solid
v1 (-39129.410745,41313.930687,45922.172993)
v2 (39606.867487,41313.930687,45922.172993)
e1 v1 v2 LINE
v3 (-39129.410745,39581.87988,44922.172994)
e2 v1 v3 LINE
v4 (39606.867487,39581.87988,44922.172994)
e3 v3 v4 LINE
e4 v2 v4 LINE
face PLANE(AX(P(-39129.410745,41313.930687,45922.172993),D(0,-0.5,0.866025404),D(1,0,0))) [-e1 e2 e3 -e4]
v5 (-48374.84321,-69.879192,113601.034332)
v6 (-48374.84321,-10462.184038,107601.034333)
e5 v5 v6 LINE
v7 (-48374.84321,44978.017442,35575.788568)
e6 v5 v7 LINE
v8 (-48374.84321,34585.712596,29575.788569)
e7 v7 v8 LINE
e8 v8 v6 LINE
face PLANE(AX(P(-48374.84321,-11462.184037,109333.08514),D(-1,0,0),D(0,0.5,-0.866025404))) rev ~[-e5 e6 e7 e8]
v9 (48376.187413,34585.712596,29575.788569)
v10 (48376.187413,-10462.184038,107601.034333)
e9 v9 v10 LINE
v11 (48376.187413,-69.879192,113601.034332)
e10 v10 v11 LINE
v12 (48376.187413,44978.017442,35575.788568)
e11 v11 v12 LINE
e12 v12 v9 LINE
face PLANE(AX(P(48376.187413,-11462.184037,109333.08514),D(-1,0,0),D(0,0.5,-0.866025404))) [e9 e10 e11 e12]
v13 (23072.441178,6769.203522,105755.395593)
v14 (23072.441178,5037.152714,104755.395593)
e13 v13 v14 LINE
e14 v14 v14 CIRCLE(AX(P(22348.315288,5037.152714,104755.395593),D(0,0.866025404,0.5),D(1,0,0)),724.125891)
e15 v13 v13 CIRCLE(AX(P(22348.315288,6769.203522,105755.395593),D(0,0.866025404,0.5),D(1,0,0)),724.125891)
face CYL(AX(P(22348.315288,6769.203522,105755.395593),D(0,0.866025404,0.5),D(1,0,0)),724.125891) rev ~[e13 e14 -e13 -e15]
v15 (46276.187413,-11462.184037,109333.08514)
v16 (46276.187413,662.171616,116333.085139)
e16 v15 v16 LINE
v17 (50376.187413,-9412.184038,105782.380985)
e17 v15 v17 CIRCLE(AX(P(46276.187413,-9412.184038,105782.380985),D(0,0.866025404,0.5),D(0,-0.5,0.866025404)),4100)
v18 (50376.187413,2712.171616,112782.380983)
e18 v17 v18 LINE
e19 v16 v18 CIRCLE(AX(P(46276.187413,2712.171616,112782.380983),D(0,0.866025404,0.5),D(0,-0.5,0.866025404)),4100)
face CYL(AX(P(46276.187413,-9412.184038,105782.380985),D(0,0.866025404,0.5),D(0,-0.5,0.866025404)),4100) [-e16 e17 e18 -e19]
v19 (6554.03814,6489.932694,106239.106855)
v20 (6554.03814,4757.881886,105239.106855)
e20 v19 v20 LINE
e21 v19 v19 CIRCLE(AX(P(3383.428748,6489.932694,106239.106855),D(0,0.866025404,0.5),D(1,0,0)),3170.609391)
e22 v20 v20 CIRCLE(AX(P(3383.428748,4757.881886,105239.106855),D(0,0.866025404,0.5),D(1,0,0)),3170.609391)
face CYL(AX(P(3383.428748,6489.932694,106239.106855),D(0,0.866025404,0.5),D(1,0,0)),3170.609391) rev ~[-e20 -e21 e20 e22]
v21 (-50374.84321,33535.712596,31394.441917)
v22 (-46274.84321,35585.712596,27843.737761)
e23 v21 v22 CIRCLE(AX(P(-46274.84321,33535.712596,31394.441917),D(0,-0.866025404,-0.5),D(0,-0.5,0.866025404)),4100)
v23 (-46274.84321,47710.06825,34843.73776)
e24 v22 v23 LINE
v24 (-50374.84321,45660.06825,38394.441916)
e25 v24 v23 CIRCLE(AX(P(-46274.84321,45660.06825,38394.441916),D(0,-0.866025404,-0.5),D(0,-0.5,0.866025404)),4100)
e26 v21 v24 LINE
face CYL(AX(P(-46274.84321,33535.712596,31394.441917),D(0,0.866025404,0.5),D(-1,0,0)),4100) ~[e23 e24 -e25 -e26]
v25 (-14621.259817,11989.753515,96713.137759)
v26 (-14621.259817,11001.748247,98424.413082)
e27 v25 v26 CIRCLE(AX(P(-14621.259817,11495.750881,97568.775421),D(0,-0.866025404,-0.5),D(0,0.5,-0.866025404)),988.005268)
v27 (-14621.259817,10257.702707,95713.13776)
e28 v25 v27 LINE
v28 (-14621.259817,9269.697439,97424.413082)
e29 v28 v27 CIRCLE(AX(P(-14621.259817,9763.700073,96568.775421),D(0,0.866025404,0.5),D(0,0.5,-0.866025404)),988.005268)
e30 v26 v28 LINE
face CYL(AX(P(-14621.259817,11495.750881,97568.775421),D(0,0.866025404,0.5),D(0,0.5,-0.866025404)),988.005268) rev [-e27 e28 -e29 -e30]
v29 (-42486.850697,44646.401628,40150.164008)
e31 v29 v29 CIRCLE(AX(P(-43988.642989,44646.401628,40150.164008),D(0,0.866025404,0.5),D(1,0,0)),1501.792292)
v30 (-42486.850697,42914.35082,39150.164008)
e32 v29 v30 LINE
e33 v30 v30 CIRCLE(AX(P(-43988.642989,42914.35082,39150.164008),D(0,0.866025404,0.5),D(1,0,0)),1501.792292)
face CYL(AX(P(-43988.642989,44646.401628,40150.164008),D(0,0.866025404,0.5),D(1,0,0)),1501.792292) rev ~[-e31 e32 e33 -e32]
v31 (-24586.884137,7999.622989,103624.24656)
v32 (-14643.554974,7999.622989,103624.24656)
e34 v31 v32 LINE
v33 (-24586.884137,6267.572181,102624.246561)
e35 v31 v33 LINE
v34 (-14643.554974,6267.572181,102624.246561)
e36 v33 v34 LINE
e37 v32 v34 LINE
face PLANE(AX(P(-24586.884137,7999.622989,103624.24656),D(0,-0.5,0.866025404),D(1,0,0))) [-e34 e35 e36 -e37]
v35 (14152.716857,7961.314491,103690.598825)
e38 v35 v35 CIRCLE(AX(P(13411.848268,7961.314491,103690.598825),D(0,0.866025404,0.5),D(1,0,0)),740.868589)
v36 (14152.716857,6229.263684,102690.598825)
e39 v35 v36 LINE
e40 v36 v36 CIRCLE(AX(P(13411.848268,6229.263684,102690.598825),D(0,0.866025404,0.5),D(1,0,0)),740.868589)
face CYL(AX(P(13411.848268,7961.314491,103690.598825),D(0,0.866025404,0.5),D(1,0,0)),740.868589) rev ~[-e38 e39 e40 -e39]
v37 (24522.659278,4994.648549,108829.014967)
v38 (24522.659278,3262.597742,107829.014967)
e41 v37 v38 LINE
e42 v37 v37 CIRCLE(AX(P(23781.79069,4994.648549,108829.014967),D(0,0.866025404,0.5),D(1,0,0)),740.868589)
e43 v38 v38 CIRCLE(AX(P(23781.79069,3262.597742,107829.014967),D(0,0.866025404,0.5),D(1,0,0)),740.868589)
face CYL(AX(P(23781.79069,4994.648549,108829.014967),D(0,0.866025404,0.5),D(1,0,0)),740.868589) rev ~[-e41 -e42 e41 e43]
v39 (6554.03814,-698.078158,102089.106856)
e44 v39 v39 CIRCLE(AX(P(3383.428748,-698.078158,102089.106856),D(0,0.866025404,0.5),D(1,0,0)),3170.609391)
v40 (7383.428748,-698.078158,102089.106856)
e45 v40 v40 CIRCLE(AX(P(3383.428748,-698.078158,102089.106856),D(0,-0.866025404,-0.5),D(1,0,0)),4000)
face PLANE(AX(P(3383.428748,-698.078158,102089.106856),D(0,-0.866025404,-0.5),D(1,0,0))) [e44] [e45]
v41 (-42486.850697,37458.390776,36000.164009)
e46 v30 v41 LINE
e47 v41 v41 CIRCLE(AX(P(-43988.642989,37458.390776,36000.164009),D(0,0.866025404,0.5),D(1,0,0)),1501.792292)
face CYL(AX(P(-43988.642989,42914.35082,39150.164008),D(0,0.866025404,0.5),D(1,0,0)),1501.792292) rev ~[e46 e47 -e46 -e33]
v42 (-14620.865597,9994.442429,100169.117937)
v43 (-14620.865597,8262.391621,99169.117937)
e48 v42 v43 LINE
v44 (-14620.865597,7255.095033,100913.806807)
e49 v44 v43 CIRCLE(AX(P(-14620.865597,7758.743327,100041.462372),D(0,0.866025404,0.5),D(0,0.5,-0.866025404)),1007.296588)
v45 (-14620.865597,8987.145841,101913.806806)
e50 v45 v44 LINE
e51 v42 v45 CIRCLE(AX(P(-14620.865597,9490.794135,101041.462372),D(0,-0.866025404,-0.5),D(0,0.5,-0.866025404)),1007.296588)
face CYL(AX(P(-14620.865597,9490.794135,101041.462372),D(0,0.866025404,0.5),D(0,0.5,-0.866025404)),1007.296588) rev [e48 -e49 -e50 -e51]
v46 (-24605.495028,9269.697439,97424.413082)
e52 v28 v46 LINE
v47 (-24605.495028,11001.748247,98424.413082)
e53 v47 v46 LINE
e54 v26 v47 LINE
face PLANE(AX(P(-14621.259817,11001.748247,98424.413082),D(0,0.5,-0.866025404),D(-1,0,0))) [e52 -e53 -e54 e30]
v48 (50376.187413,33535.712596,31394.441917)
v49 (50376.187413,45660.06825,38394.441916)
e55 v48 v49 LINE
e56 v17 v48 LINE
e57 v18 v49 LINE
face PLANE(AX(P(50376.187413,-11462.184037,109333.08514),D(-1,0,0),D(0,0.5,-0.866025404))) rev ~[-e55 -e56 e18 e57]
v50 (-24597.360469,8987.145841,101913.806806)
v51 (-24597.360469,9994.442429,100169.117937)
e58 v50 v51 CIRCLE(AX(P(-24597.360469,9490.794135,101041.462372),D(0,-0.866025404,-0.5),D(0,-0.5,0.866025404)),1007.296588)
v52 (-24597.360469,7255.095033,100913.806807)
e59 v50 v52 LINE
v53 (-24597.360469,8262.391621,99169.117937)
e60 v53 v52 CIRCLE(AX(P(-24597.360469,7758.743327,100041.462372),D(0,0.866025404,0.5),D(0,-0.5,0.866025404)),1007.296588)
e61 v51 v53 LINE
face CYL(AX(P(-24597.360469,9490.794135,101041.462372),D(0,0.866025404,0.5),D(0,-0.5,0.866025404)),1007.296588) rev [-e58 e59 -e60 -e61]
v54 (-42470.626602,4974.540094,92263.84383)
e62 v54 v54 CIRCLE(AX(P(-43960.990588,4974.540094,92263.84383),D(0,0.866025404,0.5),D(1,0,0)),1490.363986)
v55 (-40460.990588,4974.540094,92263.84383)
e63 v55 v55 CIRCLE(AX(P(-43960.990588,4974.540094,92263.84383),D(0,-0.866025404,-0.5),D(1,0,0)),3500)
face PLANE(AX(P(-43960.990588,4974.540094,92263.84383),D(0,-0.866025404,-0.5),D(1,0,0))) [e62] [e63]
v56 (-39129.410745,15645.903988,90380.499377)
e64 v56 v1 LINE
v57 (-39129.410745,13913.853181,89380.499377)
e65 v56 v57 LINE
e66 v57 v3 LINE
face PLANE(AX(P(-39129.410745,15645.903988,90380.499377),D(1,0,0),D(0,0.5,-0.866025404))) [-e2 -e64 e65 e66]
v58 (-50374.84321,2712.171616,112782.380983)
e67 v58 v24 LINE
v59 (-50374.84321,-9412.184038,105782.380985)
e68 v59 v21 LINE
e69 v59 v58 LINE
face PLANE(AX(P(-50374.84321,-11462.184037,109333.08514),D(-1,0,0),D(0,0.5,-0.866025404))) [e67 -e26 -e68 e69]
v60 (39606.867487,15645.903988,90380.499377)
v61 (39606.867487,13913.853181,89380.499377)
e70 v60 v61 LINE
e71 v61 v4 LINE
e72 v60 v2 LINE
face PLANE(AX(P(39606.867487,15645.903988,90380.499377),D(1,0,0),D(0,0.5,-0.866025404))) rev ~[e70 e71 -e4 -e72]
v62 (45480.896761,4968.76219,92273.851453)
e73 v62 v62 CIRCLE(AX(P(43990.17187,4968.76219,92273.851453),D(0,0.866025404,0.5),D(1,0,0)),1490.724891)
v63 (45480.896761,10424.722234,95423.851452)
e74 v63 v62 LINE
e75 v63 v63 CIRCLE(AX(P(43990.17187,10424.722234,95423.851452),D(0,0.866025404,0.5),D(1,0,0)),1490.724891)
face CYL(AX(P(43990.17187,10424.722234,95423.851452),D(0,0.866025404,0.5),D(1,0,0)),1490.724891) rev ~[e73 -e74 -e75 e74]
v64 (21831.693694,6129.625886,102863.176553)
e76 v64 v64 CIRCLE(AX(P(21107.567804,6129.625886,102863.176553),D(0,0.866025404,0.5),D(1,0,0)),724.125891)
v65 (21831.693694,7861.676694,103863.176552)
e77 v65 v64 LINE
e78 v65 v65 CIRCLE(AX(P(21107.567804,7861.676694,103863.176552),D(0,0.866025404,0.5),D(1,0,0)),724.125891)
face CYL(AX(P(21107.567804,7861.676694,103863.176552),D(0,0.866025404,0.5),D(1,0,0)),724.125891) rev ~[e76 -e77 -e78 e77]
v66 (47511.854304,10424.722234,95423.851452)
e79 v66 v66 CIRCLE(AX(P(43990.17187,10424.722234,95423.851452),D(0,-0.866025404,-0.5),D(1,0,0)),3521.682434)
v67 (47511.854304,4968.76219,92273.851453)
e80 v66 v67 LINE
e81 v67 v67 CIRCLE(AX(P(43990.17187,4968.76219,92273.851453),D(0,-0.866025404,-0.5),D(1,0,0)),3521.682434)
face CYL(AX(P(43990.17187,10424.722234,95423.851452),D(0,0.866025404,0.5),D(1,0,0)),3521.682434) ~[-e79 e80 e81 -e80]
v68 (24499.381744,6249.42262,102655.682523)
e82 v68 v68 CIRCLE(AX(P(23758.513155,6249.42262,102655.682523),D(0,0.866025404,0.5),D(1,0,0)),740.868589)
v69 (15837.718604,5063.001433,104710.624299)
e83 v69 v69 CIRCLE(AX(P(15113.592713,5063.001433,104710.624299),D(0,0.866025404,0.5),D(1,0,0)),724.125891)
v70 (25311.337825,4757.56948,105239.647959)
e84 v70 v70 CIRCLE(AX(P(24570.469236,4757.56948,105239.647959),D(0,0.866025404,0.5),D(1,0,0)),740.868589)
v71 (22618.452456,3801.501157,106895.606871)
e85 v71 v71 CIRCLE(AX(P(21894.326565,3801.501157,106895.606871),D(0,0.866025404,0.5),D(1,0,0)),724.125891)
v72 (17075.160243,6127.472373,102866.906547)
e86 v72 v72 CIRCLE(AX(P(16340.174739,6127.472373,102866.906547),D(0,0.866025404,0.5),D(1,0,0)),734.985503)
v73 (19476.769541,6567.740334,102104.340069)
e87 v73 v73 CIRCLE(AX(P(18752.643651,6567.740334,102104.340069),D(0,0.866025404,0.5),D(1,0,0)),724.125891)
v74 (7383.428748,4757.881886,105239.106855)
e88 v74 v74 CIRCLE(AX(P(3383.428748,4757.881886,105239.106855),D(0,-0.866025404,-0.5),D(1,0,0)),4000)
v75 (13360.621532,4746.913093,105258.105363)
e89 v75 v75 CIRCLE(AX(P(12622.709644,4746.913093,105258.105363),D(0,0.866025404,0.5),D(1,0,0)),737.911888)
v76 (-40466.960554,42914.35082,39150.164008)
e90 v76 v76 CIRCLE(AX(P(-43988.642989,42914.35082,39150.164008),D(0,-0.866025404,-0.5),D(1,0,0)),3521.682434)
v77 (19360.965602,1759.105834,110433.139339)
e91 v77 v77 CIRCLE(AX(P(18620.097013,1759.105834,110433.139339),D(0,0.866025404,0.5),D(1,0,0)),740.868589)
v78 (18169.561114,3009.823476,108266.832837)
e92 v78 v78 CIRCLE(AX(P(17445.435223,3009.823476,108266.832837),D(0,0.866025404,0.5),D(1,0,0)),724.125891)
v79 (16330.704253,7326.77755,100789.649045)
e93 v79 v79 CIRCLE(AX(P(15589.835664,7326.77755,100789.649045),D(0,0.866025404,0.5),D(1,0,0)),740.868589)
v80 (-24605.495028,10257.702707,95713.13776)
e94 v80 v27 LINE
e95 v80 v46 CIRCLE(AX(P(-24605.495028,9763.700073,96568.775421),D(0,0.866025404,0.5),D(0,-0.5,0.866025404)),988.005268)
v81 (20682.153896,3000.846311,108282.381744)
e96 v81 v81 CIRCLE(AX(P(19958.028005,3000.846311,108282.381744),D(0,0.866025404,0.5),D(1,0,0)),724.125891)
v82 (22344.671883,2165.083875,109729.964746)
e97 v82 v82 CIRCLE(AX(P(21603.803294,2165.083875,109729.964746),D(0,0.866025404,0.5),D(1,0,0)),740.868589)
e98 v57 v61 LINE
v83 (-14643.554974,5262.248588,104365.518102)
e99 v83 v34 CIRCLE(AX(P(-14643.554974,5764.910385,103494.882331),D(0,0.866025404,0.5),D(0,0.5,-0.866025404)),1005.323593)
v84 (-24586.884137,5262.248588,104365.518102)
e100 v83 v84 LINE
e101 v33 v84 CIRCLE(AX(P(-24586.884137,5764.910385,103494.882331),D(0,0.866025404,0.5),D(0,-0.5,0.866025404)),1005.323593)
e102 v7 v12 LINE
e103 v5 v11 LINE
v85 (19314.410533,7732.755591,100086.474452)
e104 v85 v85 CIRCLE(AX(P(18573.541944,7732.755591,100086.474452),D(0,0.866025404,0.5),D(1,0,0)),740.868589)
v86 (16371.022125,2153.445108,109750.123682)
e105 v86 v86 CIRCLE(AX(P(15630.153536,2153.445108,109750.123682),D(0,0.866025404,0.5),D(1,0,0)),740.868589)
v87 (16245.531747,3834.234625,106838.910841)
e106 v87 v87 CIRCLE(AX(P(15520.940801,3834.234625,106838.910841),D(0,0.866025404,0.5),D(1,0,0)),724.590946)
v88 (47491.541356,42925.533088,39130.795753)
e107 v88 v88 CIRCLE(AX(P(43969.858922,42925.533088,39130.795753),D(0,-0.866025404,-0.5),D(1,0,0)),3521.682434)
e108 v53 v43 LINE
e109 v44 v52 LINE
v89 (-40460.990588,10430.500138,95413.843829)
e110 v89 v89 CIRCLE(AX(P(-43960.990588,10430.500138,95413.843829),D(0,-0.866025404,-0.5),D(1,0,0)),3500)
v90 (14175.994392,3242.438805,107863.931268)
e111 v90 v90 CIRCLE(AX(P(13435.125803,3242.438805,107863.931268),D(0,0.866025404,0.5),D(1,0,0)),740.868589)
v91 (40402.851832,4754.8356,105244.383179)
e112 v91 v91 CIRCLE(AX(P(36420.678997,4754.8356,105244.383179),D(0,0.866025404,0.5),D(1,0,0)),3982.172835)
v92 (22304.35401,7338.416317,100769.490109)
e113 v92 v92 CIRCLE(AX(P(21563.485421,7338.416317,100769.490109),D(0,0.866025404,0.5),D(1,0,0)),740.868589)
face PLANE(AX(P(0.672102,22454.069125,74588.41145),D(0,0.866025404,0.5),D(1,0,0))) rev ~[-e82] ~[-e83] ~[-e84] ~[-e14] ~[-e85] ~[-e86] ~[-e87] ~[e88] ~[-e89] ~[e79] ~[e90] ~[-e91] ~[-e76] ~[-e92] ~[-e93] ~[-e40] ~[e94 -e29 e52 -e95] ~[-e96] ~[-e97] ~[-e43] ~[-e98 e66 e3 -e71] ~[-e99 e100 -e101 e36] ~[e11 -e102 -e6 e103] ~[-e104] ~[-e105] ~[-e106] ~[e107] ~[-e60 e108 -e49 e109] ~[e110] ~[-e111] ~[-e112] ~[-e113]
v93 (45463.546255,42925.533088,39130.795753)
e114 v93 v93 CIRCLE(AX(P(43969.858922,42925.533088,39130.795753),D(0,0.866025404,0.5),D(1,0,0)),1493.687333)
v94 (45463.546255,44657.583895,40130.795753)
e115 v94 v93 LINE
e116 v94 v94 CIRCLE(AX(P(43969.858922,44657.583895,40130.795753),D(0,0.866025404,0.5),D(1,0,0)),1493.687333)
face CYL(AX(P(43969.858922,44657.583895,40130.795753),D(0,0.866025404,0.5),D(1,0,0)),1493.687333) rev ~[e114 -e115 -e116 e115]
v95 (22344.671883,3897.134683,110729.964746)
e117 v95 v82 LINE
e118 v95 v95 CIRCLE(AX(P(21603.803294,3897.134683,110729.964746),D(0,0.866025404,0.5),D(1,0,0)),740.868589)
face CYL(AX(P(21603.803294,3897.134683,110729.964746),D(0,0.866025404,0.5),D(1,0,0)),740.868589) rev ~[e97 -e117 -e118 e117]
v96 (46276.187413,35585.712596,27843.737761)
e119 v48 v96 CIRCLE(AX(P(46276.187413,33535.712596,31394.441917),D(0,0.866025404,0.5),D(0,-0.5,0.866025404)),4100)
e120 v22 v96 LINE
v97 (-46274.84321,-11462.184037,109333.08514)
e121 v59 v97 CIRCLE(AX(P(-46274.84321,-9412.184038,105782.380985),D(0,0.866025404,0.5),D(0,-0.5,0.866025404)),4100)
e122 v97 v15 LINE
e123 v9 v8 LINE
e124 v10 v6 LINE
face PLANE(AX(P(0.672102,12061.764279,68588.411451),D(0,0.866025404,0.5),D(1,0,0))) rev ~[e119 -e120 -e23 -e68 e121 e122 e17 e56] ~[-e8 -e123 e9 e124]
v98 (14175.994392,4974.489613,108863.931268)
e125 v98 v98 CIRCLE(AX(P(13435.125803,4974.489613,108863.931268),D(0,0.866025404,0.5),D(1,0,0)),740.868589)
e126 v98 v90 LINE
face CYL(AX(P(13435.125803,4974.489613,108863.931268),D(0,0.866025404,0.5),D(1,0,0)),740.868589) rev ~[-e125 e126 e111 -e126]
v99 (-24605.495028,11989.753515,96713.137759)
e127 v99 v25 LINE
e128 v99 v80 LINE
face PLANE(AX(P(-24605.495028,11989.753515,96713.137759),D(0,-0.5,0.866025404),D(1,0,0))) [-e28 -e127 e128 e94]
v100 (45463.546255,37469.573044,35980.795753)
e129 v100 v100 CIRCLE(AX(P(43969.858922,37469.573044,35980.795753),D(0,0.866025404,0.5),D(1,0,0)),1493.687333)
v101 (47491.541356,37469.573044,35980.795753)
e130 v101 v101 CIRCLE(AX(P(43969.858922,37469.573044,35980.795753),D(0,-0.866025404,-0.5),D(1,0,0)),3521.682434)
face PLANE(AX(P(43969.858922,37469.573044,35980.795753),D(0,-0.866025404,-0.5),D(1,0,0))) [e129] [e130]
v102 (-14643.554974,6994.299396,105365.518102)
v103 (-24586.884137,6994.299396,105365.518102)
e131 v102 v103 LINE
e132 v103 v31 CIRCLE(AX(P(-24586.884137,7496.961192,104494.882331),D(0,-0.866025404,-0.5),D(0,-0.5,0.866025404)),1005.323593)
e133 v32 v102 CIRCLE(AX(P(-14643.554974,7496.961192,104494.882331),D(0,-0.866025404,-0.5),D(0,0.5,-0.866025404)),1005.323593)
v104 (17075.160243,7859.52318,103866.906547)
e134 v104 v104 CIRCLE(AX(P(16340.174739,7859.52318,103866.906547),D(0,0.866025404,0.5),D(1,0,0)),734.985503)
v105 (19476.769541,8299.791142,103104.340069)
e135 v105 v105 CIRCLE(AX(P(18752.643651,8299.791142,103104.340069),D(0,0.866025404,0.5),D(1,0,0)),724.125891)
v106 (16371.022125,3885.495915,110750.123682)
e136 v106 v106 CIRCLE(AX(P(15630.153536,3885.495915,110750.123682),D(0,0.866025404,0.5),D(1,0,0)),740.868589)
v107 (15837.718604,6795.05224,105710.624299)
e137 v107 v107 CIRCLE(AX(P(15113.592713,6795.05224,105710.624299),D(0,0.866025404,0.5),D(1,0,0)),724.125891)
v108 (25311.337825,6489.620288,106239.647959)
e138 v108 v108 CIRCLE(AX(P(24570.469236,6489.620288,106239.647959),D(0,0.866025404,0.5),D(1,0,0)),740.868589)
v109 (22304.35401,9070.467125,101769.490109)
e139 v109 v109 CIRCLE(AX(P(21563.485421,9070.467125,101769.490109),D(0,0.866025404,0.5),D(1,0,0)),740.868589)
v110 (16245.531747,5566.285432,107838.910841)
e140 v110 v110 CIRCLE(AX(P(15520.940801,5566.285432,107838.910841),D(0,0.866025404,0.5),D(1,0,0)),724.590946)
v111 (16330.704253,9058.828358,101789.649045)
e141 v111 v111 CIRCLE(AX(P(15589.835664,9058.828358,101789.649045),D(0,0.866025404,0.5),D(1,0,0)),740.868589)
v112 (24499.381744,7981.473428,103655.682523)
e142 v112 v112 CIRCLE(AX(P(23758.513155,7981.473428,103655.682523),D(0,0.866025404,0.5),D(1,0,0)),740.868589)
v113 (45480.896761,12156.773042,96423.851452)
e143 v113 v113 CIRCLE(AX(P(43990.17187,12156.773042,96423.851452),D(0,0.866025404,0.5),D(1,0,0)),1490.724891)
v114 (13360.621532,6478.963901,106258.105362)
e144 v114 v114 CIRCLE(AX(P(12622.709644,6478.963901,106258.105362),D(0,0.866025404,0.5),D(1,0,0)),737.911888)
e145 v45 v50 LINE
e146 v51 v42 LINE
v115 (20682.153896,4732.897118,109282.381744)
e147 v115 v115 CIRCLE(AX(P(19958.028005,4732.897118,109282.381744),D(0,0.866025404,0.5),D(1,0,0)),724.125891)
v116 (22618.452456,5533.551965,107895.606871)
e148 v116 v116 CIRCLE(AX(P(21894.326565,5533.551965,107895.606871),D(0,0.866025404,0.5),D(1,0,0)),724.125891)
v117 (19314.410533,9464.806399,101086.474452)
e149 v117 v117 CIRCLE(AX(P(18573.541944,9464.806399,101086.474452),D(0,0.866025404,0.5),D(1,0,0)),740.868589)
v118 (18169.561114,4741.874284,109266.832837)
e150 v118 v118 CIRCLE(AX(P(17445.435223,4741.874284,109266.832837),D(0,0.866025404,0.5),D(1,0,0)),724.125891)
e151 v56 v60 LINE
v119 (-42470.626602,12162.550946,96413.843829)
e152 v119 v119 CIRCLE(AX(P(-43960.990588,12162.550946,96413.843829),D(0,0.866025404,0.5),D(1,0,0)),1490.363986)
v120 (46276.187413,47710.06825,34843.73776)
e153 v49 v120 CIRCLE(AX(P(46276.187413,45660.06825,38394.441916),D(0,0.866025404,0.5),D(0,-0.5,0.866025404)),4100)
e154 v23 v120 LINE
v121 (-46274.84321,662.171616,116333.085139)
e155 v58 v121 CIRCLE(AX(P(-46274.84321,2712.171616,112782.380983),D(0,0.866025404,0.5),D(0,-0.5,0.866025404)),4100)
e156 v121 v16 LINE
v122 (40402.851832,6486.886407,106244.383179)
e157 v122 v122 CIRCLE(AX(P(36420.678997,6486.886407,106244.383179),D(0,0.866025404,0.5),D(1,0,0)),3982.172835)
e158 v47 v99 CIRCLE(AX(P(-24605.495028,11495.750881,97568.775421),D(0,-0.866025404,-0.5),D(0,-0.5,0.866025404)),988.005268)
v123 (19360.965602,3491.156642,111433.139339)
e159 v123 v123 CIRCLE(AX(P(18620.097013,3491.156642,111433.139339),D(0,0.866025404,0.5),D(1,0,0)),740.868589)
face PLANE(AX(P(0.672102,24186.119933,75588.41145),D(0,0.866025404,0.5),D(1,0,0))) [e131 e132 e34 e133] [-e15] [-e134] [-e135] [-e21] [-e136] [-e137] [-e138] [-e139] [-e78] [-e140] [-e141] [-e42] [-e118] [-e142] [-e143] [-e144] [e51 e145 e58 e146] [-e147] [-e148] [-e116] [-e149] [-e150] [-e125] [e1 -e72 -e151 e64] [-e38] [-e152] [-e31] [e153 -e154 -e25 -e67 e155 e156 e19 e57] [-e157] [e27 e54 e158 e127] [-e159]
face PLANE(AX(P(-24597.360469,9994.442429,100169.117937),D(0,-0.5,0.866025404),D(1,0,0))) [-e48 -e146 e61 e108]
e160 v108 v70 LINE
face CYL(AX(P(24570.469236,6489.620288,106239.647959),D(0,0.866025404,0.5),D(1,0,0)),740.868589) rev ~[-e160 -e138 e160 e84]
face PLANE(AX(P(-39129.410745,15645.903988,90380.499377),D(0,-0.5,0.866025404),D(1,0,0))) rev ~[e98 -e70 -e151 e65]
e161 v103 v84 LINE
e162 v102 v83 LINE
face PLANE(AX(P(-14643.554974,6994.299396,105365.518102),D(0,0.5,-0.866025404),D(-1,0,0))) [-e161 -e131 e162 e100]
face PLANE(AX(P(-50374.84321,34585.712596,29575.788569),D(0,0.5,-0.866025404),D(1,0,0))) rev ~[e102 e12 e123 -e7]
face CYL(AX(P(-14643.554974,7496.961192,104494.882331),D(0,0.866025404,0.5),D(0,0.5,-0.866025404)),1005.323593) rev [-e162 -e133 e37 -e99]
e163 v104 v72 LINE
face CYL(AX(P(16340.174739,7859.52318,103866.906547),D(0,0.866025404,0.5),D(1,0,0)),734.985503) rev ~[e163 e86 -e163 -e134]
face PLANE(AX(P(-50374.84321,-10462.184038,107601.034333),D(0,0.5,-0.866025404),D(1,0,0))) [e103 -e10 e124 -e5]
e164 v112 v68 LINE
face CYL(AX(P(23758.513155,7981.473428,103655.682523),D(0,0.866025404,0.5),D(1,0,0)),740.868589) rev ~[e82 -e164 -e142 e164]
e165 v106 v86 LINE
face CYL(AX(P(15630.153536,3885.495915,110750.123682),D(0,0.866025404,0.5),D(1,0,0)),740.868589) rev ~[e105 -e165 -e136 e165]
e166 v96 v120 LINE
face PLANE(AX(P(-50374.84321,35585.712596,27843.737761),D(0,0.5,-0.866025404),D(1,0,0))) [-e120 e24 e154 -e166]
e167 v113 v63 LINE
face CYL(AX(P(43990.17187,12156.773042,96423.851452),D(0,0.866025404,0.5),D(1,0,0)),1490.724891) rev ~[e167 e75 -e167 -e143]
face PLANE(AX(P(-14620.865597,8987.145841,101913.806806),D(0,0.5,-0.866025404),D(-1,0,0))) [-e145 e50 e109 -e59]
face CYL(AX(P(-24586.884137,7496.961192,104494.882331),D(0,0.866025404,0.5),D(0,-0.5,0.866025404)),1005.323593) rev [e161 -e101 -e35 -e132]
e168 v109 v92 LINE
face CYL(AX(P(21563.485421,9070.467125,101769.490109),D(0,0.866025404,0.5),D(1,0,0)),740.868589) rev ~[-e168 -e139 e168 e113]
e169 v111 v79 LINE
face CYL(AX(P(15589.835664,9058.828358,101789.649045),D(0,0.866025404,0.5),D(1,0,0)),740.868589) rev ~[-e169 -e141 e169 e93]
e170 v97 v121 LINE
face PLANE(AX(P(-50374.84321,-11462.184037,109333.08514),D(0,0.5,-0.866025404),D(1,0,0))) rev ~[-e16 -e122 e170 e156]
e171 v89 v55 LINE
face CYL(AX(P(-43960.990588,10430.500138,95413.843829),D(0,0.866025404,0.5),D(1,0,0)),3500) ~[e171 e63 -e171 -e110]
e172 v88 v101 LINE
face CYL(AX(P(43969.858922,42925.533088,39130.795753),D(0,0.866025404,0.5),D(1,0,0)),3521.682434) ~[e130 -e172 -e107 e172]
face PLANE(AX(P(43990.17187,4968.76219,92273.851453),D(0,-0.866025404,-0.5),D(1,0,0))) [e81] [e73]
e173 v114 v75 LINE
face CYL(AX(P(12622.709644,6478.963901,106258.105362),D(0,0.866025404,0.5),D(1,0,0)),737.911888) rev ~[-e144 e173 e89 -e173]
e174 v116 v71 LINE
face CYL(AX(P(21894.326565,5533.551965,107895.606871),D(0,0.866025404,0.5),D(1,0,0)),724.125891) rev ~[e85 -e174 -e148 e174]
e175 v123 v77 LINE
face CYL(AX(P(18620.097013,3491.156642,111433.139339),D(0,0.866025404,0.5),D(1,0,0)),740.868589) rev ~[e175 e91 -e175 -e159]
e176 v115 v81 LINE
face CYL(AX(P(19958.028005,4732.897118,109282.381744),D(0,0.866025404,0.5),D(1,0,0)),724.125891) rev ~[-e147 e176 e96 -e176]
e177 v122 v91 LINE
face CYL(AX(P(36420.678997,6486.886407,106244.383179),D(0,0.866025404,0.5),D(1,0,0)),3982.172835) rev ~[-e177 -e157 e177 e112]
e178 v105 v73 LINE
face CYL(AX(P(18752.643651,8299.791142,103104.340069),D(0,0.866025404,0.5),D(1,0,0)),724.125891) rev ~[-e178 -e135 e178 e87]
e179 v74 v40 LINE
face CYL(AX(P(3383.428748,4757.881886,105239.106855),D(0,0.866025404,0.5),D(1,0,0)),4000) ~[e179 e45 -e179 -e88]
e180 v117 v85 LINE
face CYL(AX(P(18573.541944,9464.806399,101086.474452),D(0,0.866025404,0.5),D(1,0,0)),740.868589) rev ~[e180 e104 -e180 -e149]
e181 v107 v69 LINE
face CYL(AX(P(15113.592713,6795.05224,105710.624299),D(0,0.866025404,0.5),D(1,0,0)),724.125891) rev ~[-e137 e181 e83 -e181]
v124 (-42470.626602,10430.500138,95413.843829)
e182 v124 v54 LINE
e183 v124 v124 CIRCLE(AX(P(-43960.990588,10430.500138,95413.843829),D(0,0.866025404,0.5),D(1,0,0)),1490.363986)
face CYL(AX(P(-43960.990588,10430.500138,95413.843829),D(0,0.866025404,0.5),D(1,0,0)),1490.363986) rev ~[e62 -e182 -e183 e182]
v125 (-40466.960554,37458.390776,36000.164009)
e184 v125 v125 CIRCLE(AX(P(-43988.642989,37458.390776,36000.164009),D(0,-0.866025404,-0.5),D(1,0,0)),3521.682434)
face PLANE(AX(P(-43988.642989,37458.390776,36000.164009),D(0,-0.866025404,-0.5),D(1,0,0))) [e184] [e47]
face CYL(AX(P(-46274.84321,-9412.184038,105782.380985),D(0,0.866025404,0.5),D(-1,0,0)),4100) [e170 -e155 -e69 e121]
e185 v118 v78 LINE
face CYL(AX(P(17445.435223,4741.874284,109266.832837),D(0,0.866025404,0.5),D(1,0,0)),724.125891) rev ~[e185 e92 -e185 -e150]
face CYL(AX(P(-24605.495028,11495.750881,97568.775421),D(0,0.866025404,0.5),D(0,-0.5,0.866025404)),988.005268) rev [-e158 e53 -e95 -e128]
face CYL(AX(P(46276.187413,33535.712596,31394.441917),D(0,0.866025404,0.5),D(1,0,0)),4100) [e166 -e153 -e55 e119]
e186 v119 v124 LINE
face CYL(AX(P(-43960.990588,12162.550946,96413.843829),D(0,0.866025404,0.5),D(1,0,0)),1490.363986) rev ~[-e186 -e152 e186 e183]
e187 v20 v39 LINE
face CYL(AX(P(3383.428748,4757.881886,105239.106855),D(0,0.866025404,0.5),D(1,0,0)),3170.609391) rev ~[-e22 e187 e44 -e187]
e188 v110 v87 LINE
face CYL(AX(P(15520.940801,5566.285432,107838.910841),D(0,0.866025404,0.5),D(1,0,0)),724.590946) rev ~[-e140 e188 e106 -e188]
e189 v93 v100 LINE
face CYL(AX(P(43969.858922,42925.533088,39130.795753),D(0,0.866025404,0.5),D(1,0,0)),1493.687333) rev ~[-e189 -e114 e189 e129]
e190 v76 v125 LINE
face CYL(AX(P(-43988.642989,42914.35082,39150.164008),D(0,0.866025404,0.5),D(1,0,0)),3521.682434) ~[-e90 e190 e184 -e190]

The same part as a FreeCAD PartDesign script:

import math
import FreeCAD as App
import Part
import Sketcher

V = App.Vector


def edges_at(feature, points):
    """Names of the edges that pass closest to the given points."""
    edges = feature.Shape.Edges
    near = lambda p: min(range(len(edges)), key=lambda i: edges[i].distToShape(Part.Vertex(*p))[0])
    return sorted({f"Edge{near(p) + 1}" for p in points})


def faces_at(feature, points):
    """Names of the faces that lie closest to the given points."""
    faces = feature.Shape.Faces
    near = lambda p: min(range(len(faces)), key=lambda i: faces[i].distToShape(Part.Vertex(*p))[0])
    return sorted({f"Face{near(p) + 1}" for p in points})


def add_polygon(sketch, points):
    """Adds a closed chain of lines whose ends are joined by coincident constraints."""
    first, n = sketch.GeometryCount, len(points)
    for a, b in zip(points, points[1:] + points[:1]):
        sketch.addGeometry(Part.LineSegment(App.Vector(*a, 0), App.Vector(*b, 0)), False)
    for i in range(n):
        sketch.addConstraint(Sketcher.Constraint("Coincident", first + i, 2, first + (i + 1) % n, 1))

doc = App.newDocument("Part")
params = doc.addObject("Spreadsheet::Sheet", "Params")
for row, (alias, value) in enumerate([
    ("pad1_length", "14000 mm"),
    ("thickness_wall", "2000 mm"),
    ("sketch3_diameter", "7000 mm"),
    ("sketch3_diameter2", "8000 mm"),
    ("pad2_length", "6300 mm"),
    ("fillet_radius", "4100 mm"),
], start=1):
    params.set(f"A{row}", alias)
    params.set(f"B{row}", "=" + value)
    params.setAlias(f"B{row}", alias)

body = doc.addObject("PartDesign::Body", "Body")

# Sketch on an angled plane
sketch1 = body.newObject("Sketcher::SketchObject", "Sketch")
sketch1.Placement = App.Placement(V(0, 38745.976565, 22370), App.Rotation(V(1, 0, 0), V(0, 0.5, -0.866025404), V(0, 0.866025404, 0.5), "ZXY"))
add_polygon(sketch1, [(-50374.84321, -6320.527942), (-50374.84321, -100416.321262), (50376.187413, -100416.321262), (50376.187413, -6320.527942)])  # lines 0-3
sketch1.addConstraint(Sketcher.Constraint("Vertical", 0))
sketch1.addConstraint(Sketcher.Constraint("Horizontal", 1))
sketch1.addConstraint(Sketcher.Constraint("Vertical", 2))
sketch1.addConstraint(Sketcher.Constraint("Horizontal", 3))
sketch1.addConstraint(Sketcher.Constraint("DistanceY", 0, 2, 0, 1, 94095.79332))
sketch1.addConstraint(Sketcher.Constraint("DistanceX", 1, 1, 1, 2, 100751.030624))
sketch1.addConstraint(Sketcher.Constraint("DistanceX", 0, 2, -1, 1, 50374.84321))
sketch1.addConstraint(Sketcher.Constraint("DistanceY", 0, 2, -1, 1, 100416.321262))
pad1 = body.newObject("PartDesign::Pad", "Pad")
pad1.Profile = sketch1
pad1.setExpression("Length", "Params.pad1_length")
doc.recompute()

thickness = body.newObject("PartDesign::Thickness", "Thickness")
thickness.Base = (pad1, faces_at(pad1, [(0.672, 12061.764, 68588.411)]))
thickness.setExpression("Value", "Params.thickness_wall")
thickness.Reversed = True
thickness.Join = "Intersection"

# Sketch on an angled plane
sketch2 = body.newObject("Sketcher::SketchObject", "Sketch001")
sketch2.Placement = App.Placement(V(0, 50870.332218, 29370), App.Rotation(V(1, 0, 0), V(0, 0.5, -0.866025404), V(0, 0.866025404, 0.5), "ZXY"))
sketch2.addGeometry(Part.Circle(V(-43988.642989, -12447.861188, 0), V(0, 0, 1), 1501.792292), False)  # 0
sketch2.addGeometry(Part.Circle(V(43969.858922, -12425.496653, 0), V(0, 0, 1), 1493.687333), False)  # 1
sketch2.addGeometry(Part.Circle(V(43990.17187, -77427.118396, 0), V(0, 0, 1), 1490.724891), False)  # 2
sketch2.addGeometry(Part.Circle(V(36420.678997, -88766.891672, 0), V(0, 0, 1), 3982.172835), False)  # 3
sketch2.addGeometry(Part.Circle(V(3383.428748, -88760.799098, 0), V(0, 0, 1), 3170.609391), False)  # 4
sketch2.addGeometry(Part.Circle(V(-43960.990588, -77415.562589, 0), V(0, 0, 1), 1490.363986), False)  # 5
sketch2.addGeometry(Part.Circle(V(12622.709644, -88782.736684, 0), V(0, 0, 1), 737.911888), False)  # 6
sketch2.addGeometry(Part.Circle(V(13435.125803, -91791.685262, 0), V(0, 0, 1), 740.868589), False)  # 7
sketch2.addGeometry(Part.Circle(V(15520.940801, -90608.093622, 0), V(0, 0, 1), 724.590946), False)  # 8
sketch2.addGeometry(Part.Circle(V(15113.592713, -88150.560006, 0), V(0, 0, 1), 724.125891), False)  # 9
sketch2.addGeometry(Part.Circle(V(16340.174739, -86021.618124, 0), V(0, 0, 1), 734.985503), False)  # 10
sketch2.addGeometry(Part.Circle(V(18752.643651, -85141.082201, 0), V(0, 0, 1), 724.125891), False)  # 11
sketch2.addGeometry(Part.Circle(V(21107.567804, -86017.311097, 0), V(0, 0, 1), 724.125891), False)  # 12
sketch2.addGeometry(Part.Circle(V(22348.315288, -88202.257442, 0), V(0, 0, 1), 724.125891), False)  # 13
sketch2.addGeometry(Part.Circle(V(21894.326565, -90673.560558, 0), V(0, 0, 1), 724.125891), False)  # 14
sketch2.addGeometry(Part.Circle(V(19958.028005, -92274.870251, 0), V(0, 0, 1), 724.125891), False)  # 15
sketch2.addGeometry(Part.Circle(V(17445.435223, -92256.91592, 0), V(0, 0, 1), 724.125891), False)  # 16
sketch2.addGeometry(Part.Circle(V(13411.848268, -85818.035502, 0), V(0, 0, 1), 740.868589), False)  # 17
sketch2.addGeometry(Part.Circle(V(15589.835664, -83623.007768, 0), V(0, 0, 1), 740.868589), False)  # 18
sketch2.addGeometry(Part.Circle(V(18573.541944, -82811.051686, 0), V(0, 0, 1), 740.868589), False)  # 19
sketch2.addGeometry(Part.Circle(V(21563.485421, -83599.730233, 0), V(0, 0, 1), 740.868589), False)  # 20
sketch2.addGeometry(Part.Circle(V(23758.513155, -85777.71763, 0), V(0, 0, 1), 740.868589), False)  # 21
sketch2.addGeometry(Part.Circle(V(24570.469236, -88761.423911, 0), V(0, 0, 1), 740.868589), False)  # 22
sketch2.addGeometry(Part.Circle(V(23781.79069, -91751.367389, 0), V(0, 0, 1), 740.868589), False)  # 23
sketch2.addGeometry(Part.Circle(V(21603.803294, -93946.395124, 0), V(0, 0, 1), 740.868589), False)  # 24
sketch2.addGeometry(Part.Circle(V(18620.097013, -94758.351206, 0), V(0, 0, 1), 740.868589), False)  # 25
sketch2.addGeometry(Part.Circle(V(15630.153536, -93969.672658, 0), V(0, 0, 1), 740.868589), False)  # 26
sketch2.addGeometry(Part.LineSegment(V(-14621.259817, -77761.157451, 0), V(-24605.495028, -77761.157451, 0)), False)  # 27
sketch2.addGeometry(Part.ArcOfCircle(Part.Circle(V(-24605.495028, -78749.162719, 0), V(0, 0, 1), 988.005268), math.radians(90), math.radians(270)), False)  # 28
sketch2.addGeometry(Part.LineSegment(V(-24605.495028, -79737.167988, 0), V(-14621.259817, -79737.167988, 0)), False)  # 29
sketch2.addGeometry(Part.ArcOfCircle(Part.Circle(V(-14621.259817, -78749.162719, 0), V(0, 0, 1), 988.005268), math.radians(-90), math.radians(90)), False)  # 30
add_polygon(sketch2, [(-39129.410745, -19112.803073), (-39129.410745, -70448.856499), (39606.867487, -70448.856499), (39606.867487, -19112.803073)])  # lines 31-34
sketch2.addGeometry(Part.LineSegment(V(-14620.865597, -81751.779624, 0), V(-24597.360469, -81751.779624, 0)), False)  # 35
sketch2.addGeometry(Part.ArcOfCircle(Part.Circle(V(-24597.360469, -82759.076213, 0), V(0, 0, 1), 1007.296588), math.radians(90), math.radians(270)), False)  # 36
sketch2.addGeometry(Part.LineSegment(V(-24597.360469, -83766.372801, 0), V(-14620.865597, -83766.372801, 0)), False)  # 37
sketch2.addGeometry(Part.ArcOfCircle(Part.Circle(V(-14620.865597, -82759.076213, 0), V(0, 0, 1), 1007.296588), math.radians(-90), math.radians(90)), False)  # 38
sketch2.addGeometry(Part.LineSegment(V(-14643.554974, -85741.418507, 0), V(-24586.884137, -85741.418507, 0)), False)  # 39
sketch2.addGeometry(Part.ArcOfCircle(Part.Circle(V(-24586.884137, -86746.7421, 0), V(0, 0, 1), 1005.323593), math.radians(90), math.radians(270)), False)  # 40
sketch2.addGeometry(Part.LineSegment(V(-24586.884137, -87752.065694, 0), V(-14643.554974, -87752.065694, 0)), False)  # 41
sketch2.addGeometry(Part.ArcOfCircle(Part.Circle(V(-14643.554974, -86746.7421, 0), V(0, 0, 1), 1005.323593), math.radians(-90), math.radians(90)), False)  # 42
sketch2.addConstraint(Sketcher.Constraint("Coincident", 27, 2, 28, 1))
sketch2.addConstraint(Sketcher.Constraint("Coincident", 28, 2, 29, 1))
sketch2.addConstraint(Sketcher.Constraint("Coincident", 29, 2, 30, 1))
sketch2.addConstraint(Sketcher.Constraint("Coincident", 30, 2, 27, 1))
sketch2.addConstraint(Sketcher.Constraint("Coincident", 35, 2, 36, 1))
sketch2.addConstraint(Sketcher.Constraint("Coincident", 36, 2, 37, 1))
sketch2.addConstraint(Sketcher.Constraint("Coincident", 37, 2, 38, 1))
sketch2.addConstraint(Sketcher.Constraint("Coincident", 38, 2, 35, 1))
sketch2.addConstraint(Sketcher.Constraint("Coincident", 39, 2, 40, 1))
sketch2.addConstraint(Sketcher.Constraint("Coincident", 40, 2, 41, 1))
sketch2.addConstraint(Sketcher.Constraint("Coincident", 41, 2, 42, 1))
sketch2.addConstraint(Sketcher.Constraint("Coincident", 42, 2, 39, 1))
sketch2.addConstraint(Sketcher.Constraint("Horizontal", 27))
sketch2.addConstraint(Sketcher.Constraint("Horizontal", 29))
sketch2.addConstraint(Sketcher.Constraint("Vertical", 31))
sketch2.addConstraint(Sketcher.Constraint("Horizontal", 32))
sketch2.addConstraint(Sketcher.Constraint("Vertical", 33))
sketch2.addConstraint(Sketcher.Constraint("Horizontal", 34))
sketch2.addConstraint(Sketcher.Constraint("Horizontal", 35))
sketch2.addConstraint(Sketcher.Constraint("Horizontal", 37))
sketch2.addConstraint(Sketcher.Constraint("Horizontal", 39))
sketch2.addConstraint(Sketcher.Constraint("Horizontal", 41))
sketch2.addConstraint(Sketcher.Constraint("Equal", 9, 11))
sketch2.addConstraint(Sketcher.Constraint("Equal", 11, 12))
sketch2.addConstraint(Sketcher.Constraint("Equal", 12, 13))
sketch2.addConstraint(Sketcher.Constraint("Equal", 13, 14))
sketch2.addConstraint(Sketcher.Constraint("Equal", 14, 15))
sketch2.addConstraint(Sketcher.Constraint("Equal", 15, 16))
sketch2.addConstraint(Sketcher.Constraint("Equal", 7, 17))
sketch2.addConstraint(Sketcher.Constraint("Equal", 17, 18))
sketch2.addConstraint(Sketcher.Constraint("Equal", 18, 19))
sketch2.addConstraint(Sketcher.Constraint("Equal", 19, 20))
sketch2.addConstraint(Sketcher.Constraint("Equal", 20, 21))
sketch2.addConstraint(Sketcher.Constraint("Equal", 21, 22))
sketch2.addConstraint(Sketcher.Constraint("Equal", 22, 23))
sketch2.addConstraint(Sketcher.Constraint("Equal", 23, 24))
sketch2.addConstraint(Sketcher.Constraint("Equal", 24, 25))
sketch2.addConstraint(Sketcher.Constraint("Equal", 25, 26))
sketch2.addConstraint(Sketcher.Constraint("Vertical", 28, 3, 27, 2))
sketch2.addConstraint(Sketcher.Constraint("Vertical", 30, 3, 29, 2))
sketch2.addConstraint(Sketcher.Constraint("Vertical", 36, 3, 35, 2))
sketch2.addConstraint(Sketcher.Constraint("Vertical", 38, 3, 37, 2))
sketch2.addConstraint(Sketcher.Constraint("Vertical", 40, 3, 39, 2))
sketch2.addConstraint(Sketcher.Constraint("Vertical", 42, 3, 41, 2))
sketch2.addConstraint(Sketcher.Constraint("Equal", 27, 29))
sketch2.addConstraint(Sketcher.Constraint("Equal", 35, 37))
sketch2.addConstraint(Sketcher.Constraint("Equal", 39, 41))
sketch2.addConstraint(Sketcher.Constraint("Diameter", 2, 2981.449781))
sketch2.addConstraint(Sketcher.Constraint("Diameter", 3, 7964.34567))
sketch2.addConstraint(Sketcher.Constraint("Diameter", 8, 1449.181892))
sketch2.addConstraint(Sketcher.Constraint("Diameter", 9, 1448.251781))
sketch2.addConstraint(Sketcher.Constraint("Radius", 36, 1007.296588))
sketch2.addConstraint(Sketcher.Constraint("Diameter", 0, 3003.584584))
sketch2.addConstraint(Sketcher.Constraint("Diameter", 1, 2987.374667))
sketch2.addConstraint(Sketcher.Constraint("Diameter", 4, 6341.218783))
sketch2.addConstraint(Sketcher.Constraint("Diameter", 5, 2980.727972))
sketch2.addConstraint(Sketcher.Constraint("Diameter", 6, 1475.823777))
sketch2.addConstraint(Sketcher.Constraint("Diameter", 7, 1481.737178))
sketch2.addConstraint(Sketcher.Constraint("Diameter", 10, 1469.971007))
sketch2.addConstraint(Sketcher.Constraint("Radius", 28, 988.005268))
sketch2.addConstraint(Sketcher.Constraint("Radius", 40, 1005.323593))
sketch2.addConstraint(Sketcher.Constraint("DistanceX", 7, 3, 8, 3, 2085.814998))
sketch2.addConstraint(Sketcher.Constraint("DistanceX", 27, 2, 27, 1, 9984.235211))
sketch2.addConstraint(Sketcher.Constraint("DistanceY", 4, 3, -1, 1, 88760.799098))
sketch2.addConstraint(Sketcher.Constraint("DistanceX", -1, 1, 8, 3, 15520.940801))
sketch2.addConstraint(Sketcher.Constraint("DistanceY", 11, 3, -1, 1, 85141.082201))
sketch2.addConstraint(Sketcher.Constraint("DistanceY", 40, 3, -1, 1, 86746.7421))
sketch2.addConstraint(Sketcher.Constraint("DistanceY", 31, 2, -1, 1, 70448.856499))
sketch2.addConstraint(Sketcher.Constraint("DistanceY", 36, 2, -1, 1, 83766.372801))
sketch2.addConstraint(Sketcher.Constraint("DistanceY", 4, 3, 2, 3, 11333.680702))
sketch2.addConstraint(Sketcher.Constraint("DistanceX", 0, 3, 5, 3, 27.652401))
sketch2.addConstraint(Sketcher.Constraint("DistanceY", 5, 3, 0, 3, 64967.701401))
sketch2.addConstraint(Sketcher.Constraint("DistanceY", 8, 3, 10, 3, 4586.475498))
sketch2.addConstraint(Sketcher.Constraint("DistanceX", 15, 3, 12, 3, 1149.539799))
sketch2.addConstraint(Sketcher.Constraint("DistanceY", 17, 3, 11, 3, 676.953301))
sketch2.addConstraint(Sketcher.Constraint("DistanceX", 13, 3, 23, 3, 1433.475402))
sketch2.addConstraint(Sketcher.Constraint("DistanceX", 32, 1, 32, 2, 78736.278232))
sketch2.addConstraint(Sketcher.Constraint("DistanceX", 35, 2, 35, 1, 9976.494872))
sketch2.addConstraint(Sketcher.Constraint("DistanceX", 39, 2, 39, 1, 9943.329163))
sketch2.addConstraint(Sketcher.Constraint("DistanceY", 31, 2, 31, 1, 51336.053426))
sketch2.addConstraint(Sketcher.Constraint("DistanceX", 0, 3, -1, 1, 43988.642989))
sketch2.addConstraint(Sketcher.Constraint("DistanceY", 0, 3, -1, 1, 12447.861188))
sketch2.addConstraint(Sketcher.Constraint("DistanceX", -1, 1, 1, 3, 43969.858922))
sketch2.addConstraint(Sketcher.Constraint("DistanceX", -1, 1, 2, 3, 43990.17187))
sketch2.addConstraint(Sketcher.Constraint("DistanceY", 3, 3, -1, 1, 88766.891672))
sketch2.addConstraint(Sketcher.Constraint("DistanceX", -1, 1, 4, 3, 3383.428748))
sketch2.addConstraint(Sketcher.Constraint("DistanceY", 7, 3, -1, 1, 91791.685262))
sketch2.addConstraint(Sketcher.Constraint("DistanceX", -1, 1, 10, 3, 16340.174739))
sketch2.addConstraint(Sketcher.Constraint("DistanceX", -1, 1, 11, 3, 18752.643651))
sketch2.addConstraint(Sketcher.Constraint("DistanceY", 14, 3, -1, 1, 90673.560558))
sketch2.addConstraint(Sketcher.Constraint("DistanceY", 15, 3, -1, 1, 92274.870251))
sketch2.addConstraint(Sketcher.Constraint("DistanceY", 16, 3, -1, 1, 92256.91592))
sketch2.addConstraint(Sketcher.Constraint("DistanceX", -1, 1, 17, 3, 13411.848268))
sketch2.addConstraint(Sketcher.Constraint("DistanceX", -1, 1, 20, 3, 21563.485421))
sketch2.addConstraint(Sketcher.Constraint("DistanceY", 21, 3, -1, 1, 85777.71763))
sketch2.addConstraint(Sketcher.Constraint("DistanceY", 22, 3, -1, 1, 88761.423911))
sketch2.addConstraint(Sketcher.Constraint("DistanceX", -1, 1, 23, 3, 23781.79069))
sketch2.addConstraint(Sketcher.Constraint("DistanceY", 23, 3, -1, 1, 91751.367389))
sketch2.addConstraint(Sketcher.Constraint("DistanceY", 26, 3, -1, 1, 93969.672658))
sketch2.addConstraint(Sketcher.Constraint("DistanceY", 28, 3, -1, 1, 78749.162719))
sketch2.addConstraint(Sketcher.Constraint("DistanceX", 36, 3, -1, 1, 24597.360469))
sketch2.addConstraint(Sketcher.Constraint("DistanceY", 3, 3, 1, 3, 76341.395019))
sketch2.addConstraint(Sketcher.Constraint("DistanceX", 4, 3, 3, 3, 33037.250248))
sketch2.addConstraint(Sketcher.Constraint("DistanceX", 5, 3, 6, 3, 56583.700232))
sketch2.addConstraint(Sketcher.Constraint("DistanceY", 6, 3, 1, 3, 76357.240031))
sketch2.addConstraint(Sketcher.Constraint("DistanceY", 7, 3, 8, 3, 1183.59164))
sketch2.addConstraint(Sketcher.Constraint("DistanceX", 6, 3, 9, 3, 2490.88307))
sketch2.addConstraint(Sketcher.Constraint("DistanceY", 6, 3, 9, 3, 632.176679))
sketch2.addConstraint(Sketcher.Constraint("DistanceX", 9, 3, 12, 3, 5993.97509))
sketch2.addConstraint(Sketcher.Constraint("DistanceY", 9, 3, 12, 3, 2133.248908))
sketch2.addConstraint(Sketcher.Constraint("DistanceY", 13, 3, 11, 3, 3061.175241))
sketch2.addConstraint(Sketcher.Constraint("DistanceX", 12, 3, 14, 3, 786.758761))
sketch2.addConstraint(Sketcher.Constraint("DistanceX", 16, 3, 15, 3, 2512.592782))
sketch2.addConstraint(Sketcher.Constraint("DistanceX", 9, 3, 18, 3, 476.24295))
sketch2.addConstraint(Sketcher.Constraint("DistanceX", 18, 3, 19, 3, 2983.706281))
sketch2.addConstraint(Sketcher.Constraint("DistanceY", 18, 3, 19, 3, 811.956082))
sketch2.addConstraint(Sketcher.Constraint("DistanceY", 10, 3, 19, 3, 3210.566438))
sketch2.addConstraint(Sketcher.Constraint("DistanceY", 13, 3, 20, 3, 4602.527209))
sketch2.addConstraint(Sketcher.Constraint("DistanceX", 12, 3, 21, 3, 2650.945351))
sketch2.addConstraint(Sketcher.Constraint("DistanceX", 13, 3, 22, 3, 2222.153949))
sketch2.addConstraint(Sketcher.Constraint("DistanceX", 15, 3, 24, 3, 1645.775289))
sketch2.addConstraint(Sketcher.Constraint("DistanceY", 24, 3, 13, 3, 5744.137681))
sketch2.addConstraint(Sketcher.Constraint("DistanceX", 16, 3, 25, 3, 1174.66179))
sketch2.addConstraint(Sketcher.Constraint("DistanceY", 25, 3, 24, 3, 811.956082))
sketch2.addConstraint(Sketcher.Constraint("DistanceX", 26, 3, 15, 3, 4327.874469))
sketch2.addConstraint(Sketcher.Constraint("DistanceX", 5, 3, 28, 3, 19355.49556))
sketch2.addConstraint(Sketcher.Constraint("DistanceX", 28, 3, 30, 3, 9984.235211))
sketch2.addConstraint(Sketcher.Constraint("DistanceX", 30, 3, 38, 3, 0.394219))
sketch2.addConstraint(Sketcher.Constraint("DistanceX", 28, 3, 40, 3, 18.610891))
sketch2.addConstraint(Sketcher.Constraint("DistanceX", 3, 3, 32, 2, 3186.18849))
sketch2.addConstraint(Sketcher.Constraint("DistanceX", 42, 3, -1, 1, 14643.554974))
pocket1 = body.newObject("PartDesign::Pocket", "Pocket")
pocket1.Profile = sketch2
pocket1.Type = "ThroughAll"

# Sketch on an angled plane
sketch3 = body.newObject("Sketcher::SketchObject", "Sketch002")
sketch3.Placement = App.Placement(V(0, 49138.281411, 28370), App.Rotation(V(1, 0, 0), V(0, -0.5, 0.866025404), V(0, -0.866025404, -0.5), "ZXY"))
sketch3.addGeometry(Part.Circle(V(43969.858922, 12425.496653, 0), V(0, 0, 1), 3521.682434), False)
sketch3.addGeometry(Part.Circle(V(-43988.642989, 12447.861188, 0), V(0, 0, 1), 3521.682434), False)
sketch3.addGeometry(Part.Circle(V(-43960.990588, 77415.562589, 0), V(0, 0, 1), 3500), False)
sketch3.addGeometry(Part.Circle(V(43990.17187, 77427.118396, 0), V(0, 0, 1), 3521.682434), False)
sketch3.addGeometry(Part.Circle(V(3383.428748, 88760.799098, 0), V(0, 0, 1), 4000), False)
sketch3.addConstraint(Sketcher.Constraint("Equal", 0, 1))
sketch3.addConstraint(Sketcher.Constraint("Equal", 1, 3))
sketch3.addConstraint(Sketcher.Constraint("Diameter", 2, 7000.0))
sketch3.addConstraint(Sketcher.Constraint("Diameter", 4, 8000.0))
sketch3.addConstraint(Sketcher.Constraint("Diameter", 0, 7043.364869))
sketch3.addConstraint(Sketcher.Constraint("DistanceY", -1, 1, 4, 3, 88760.799098))
sketch3.addConstraint(Sketcher.Constraint("DistanceX", 1, 3, 2, 3, 27.652401))
sketch3.addConstraint(Sketcher.Constraint("DistanceY", 1, 3, 2, 3, 64967.701401))
sketch3.addConstraint(Sketcher.Constraint("DistanceY", 3, 3, 4, 3, 11333.680702))
sketch3.addConstraint(Sketcher.Constraint("DistanceX", -1, 1, 0, 3, 43969.858922))
sketch3.addConstraint(Sketcher.Constraint("DistanceX", 1, 3, -1, 1, 43988.642989))
sketch3.addConstraint(Sketcher.Constraint("DistanceY", -1, 1, 1, 3, 12447.861188))
sketch3.addConstraint(Sketcher.Constraint("DistanceX", -1, 1, 3, 3, 43990.17187))
sketch3.addConstraint(Sketcher.Constraint("DistanceX", -1, 1, 4, 3, 3383.428748))
sketch3.addConstraint(Sketcher.Constraint("DistanceY", -1, 1, 0, 3, 12425.496653))
sketch3.setExpression("Constraints[2]", "Params.sketch3_diameter")
sketch3.setExpression("Constraints[3]", "Params.sketch3_diameter2")
pad2 = body.newObject("PartDesign::Pad", "Pad001")
pad2.Profile = sketch3
pad2.setExpression("Length", "Params.pad2_length")

# Sketch on an angled plane
sketch4 = body.newObject("Sketcher::SketchObject", "Sketch003")
sketch4.Placement = App.Placement(V(0, 49138.281411, 28370), App.Rotation(V(1, 0, 0), V(0, 0.5, -0.866025404), V(0, 0.866025404, 0.5), "ZXY"))
sketch4.addGeometry(Part.Circle(V(3383.428748, -88760.799098, 0), V(0, 0, 1), 3170.609391), False)
sketch4.addGeometry(Part.Circle(V(-43960.990588, -77415.562589, 0), V(0, 0, 1), 1490.363986), False)
sketch4.addGeometry(Part.Circle(V(-43988.642989, -12447.861188, 0), V(0, 0, 1), 1501.792292), False)
sketch4.addGeometry(Part.Circle(V(43969.858922, -12425.496653, 0), V(0, 0, 1), 1493.687333), False)
sketch4.addGeometry(Part.Circle(V(43990.17187, -77427.118396, 0), V(0, 0, 1), 1490.724891), False)
sketch4.addConstraint(Sketcher.Constraint("Diameter", 4, 2981.449781))
sketch4.addConstraint(Sketcher.Constraint("Diameter", 0, 6341.218783))
sketch4.addConstraint(Sketcher.Constraint("Diameter", 1, 2980.727972))
sketch4.addConstraint(Sketcher.Constraint("Diameter", 2, 3003.584584))
sketch4.addConstraint(Sketcher.Constraint("Diameter", 3, 2987.374667))
sketch4.addConstraint(Sketcher.Constraint("DistanceY", 0, 3, -1, 1, 88760.799098))
sketch4.addConstraint(Sketcher.Constraint("DistanceX", 2, 3, 1, 3, 27.652401))
sketch4.addConstraint(Sketcher.Constraint("DistanceY", 1, 3, 2, 3, 64967.701401))
sketch4.addConstraint(Sketcher.Constraint("DistanceY", 0, 3, 4, 3, 11333.680702))
sketch4.addConstraint(Sketcher.Constraint("DistanceX", -1, 1, 0, 3, 3383.428748))
sketch4.addConstraint(Sketcher.Constraint("DistanceX", 1, 3, -1, 1, 43960.990588))
sketch4.addConstraint(Sketcher.Constraint("DistanceY", 1, 3, -1, 1, 77415.562589))
sketch4.addConstraint(Sketcher.Constraint("DistanceX", -1, 1, 3, 3, 43969.858922))
sketch4.addConstraint(Sketcher.Constraint("DistanceX", -1, 1, 4, 3, 43990.17187))
sketch4.addConstraint(Sketcher.Constraint("DistanceY", 3, 3, -1, 1, 12425.496653))
pocket2 = body.newObject("PartDesign::Pocket", "Pocket001")
pocket2.Profile = sketch4
pocket2.Type = "ThroughAll"
doc.recompute()

fillet = body.newObject("PartDesign::Fillet", "Fillet")
fillet.Base = (pocket2, edges_at(pocket2, [
    (-50374.843, 41647.89, 31343.738),
    (50376.187, 41647.89, 31343.738),
    (50376.187, -5400.006, 112833.085),
    (-50374.843, -5400.006, 112833.085),
]))
fillet.setExpression("Radius", "Params.fillet_radius")

doc.recompute()
